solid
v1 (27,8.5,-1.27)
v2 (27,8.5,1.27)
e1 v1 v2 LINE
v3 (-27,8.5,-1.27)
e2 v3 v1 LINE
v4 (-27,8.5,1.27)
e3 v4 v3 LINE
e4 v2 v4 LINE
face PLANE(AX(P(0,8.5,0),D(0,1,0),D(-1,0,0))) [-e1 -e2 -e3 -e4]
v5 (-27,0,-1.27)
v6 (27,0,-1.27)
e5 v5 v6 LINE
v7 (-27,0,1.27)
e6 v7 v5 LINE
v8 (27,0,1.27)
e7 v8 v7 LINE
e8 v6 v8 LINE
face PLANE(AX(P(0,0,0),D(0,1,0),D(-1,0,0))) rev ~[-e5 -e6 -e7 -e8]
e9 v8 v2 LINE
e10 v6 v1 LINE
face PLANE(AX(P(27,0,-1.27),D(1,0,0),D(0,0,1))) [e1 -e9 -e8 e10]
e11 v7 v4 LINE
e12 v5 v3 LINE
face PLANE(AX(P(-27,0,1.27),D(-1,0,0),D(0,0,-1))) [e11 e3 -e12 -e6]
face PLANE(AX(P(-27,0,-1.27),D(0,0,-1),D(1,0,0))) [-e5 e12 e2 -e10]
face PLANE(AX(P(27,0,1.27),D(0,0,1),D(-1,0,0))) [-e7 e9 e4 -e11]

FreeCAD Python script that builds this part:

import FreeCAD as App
import Part
import Sketcher
from FreeCAD import Vector


def add_polygon(sketch, points):
    """Adds a closed chain of lines whose ends are joined by coincident constraints."""
    first, n = sketch.GeometryCount, len(points)
    for a, b in zip(points, points[1:] + points[:1]):
        sketch.addGeometry(Part.LineSegment(App.Vector(*a, 0), App.Vector(*b, 0)), False)
    for i in range(n):
        sketch.addConstraint(Sketcher.Constraint("Coincident", first + i, 2, first + (i + 1) % n, 1))

doc = App.newDocument("Part")
params = doc.addObject("Spreadsheet::Sheet", "Params")
for row, (alias, value) in enumerate([
    ("sketch1_width", "54 mm"),
    ("sketch1_height", "2.54 mm"),
    ("pad1_length", "8.5 mm"),
], start=1):
    params.set(f"A{row}", alias)
    params.set(f"B{row}", "=" + value)
    params.setAlias(f"B{row}", alias)

body = doc.addObject("PartDesign::Body", "Body")

# Sketch on XZ plane
sketch1 = body.newObject("Sketcher::SketchObject", "Sketch")
sketch1.AttachmentSupport = (doc.getObject("XZ_Plane"), [""])
sketch1.MapMode = "FlatFace"
add_polygon(sketch1, [(-27, 1.3), (27, 1.3), (27, -1.3), (-27, -1.3)])  # lines 0-3
sketch1.addConstraint([
    Sketcher.Constraint("Horizontal", 0),
    Sketcher.Constraint("Vertical", 1),
    Sketcher.Constraint("Horizontal", 2),
    Sketcher.Constraint("Vertical", 3),
    Sketcher.Constraint("Symmetric", 0, 2, 2, 2, -1, 1),
    Sketcher.Constraint("DistanceX", 0, 1, 0, 2, 54.0),
    Sketcher.Constraint("DistanceY", 1, 2, 1, 1, 2.54),
])
sketch1.setExpression("Constraints[9]", "Params.sketch1_width")
sketch1.setExpression("Constraints[10]", "Params.sketch1_height")
pad1 = body.newObject("PartDesign::Pad", "Pad")
pad1.Profile = sketch1
pad1.setExpression("Length", "Params.pad1_length")
pad1.Reversed = True

doc.recompute()
